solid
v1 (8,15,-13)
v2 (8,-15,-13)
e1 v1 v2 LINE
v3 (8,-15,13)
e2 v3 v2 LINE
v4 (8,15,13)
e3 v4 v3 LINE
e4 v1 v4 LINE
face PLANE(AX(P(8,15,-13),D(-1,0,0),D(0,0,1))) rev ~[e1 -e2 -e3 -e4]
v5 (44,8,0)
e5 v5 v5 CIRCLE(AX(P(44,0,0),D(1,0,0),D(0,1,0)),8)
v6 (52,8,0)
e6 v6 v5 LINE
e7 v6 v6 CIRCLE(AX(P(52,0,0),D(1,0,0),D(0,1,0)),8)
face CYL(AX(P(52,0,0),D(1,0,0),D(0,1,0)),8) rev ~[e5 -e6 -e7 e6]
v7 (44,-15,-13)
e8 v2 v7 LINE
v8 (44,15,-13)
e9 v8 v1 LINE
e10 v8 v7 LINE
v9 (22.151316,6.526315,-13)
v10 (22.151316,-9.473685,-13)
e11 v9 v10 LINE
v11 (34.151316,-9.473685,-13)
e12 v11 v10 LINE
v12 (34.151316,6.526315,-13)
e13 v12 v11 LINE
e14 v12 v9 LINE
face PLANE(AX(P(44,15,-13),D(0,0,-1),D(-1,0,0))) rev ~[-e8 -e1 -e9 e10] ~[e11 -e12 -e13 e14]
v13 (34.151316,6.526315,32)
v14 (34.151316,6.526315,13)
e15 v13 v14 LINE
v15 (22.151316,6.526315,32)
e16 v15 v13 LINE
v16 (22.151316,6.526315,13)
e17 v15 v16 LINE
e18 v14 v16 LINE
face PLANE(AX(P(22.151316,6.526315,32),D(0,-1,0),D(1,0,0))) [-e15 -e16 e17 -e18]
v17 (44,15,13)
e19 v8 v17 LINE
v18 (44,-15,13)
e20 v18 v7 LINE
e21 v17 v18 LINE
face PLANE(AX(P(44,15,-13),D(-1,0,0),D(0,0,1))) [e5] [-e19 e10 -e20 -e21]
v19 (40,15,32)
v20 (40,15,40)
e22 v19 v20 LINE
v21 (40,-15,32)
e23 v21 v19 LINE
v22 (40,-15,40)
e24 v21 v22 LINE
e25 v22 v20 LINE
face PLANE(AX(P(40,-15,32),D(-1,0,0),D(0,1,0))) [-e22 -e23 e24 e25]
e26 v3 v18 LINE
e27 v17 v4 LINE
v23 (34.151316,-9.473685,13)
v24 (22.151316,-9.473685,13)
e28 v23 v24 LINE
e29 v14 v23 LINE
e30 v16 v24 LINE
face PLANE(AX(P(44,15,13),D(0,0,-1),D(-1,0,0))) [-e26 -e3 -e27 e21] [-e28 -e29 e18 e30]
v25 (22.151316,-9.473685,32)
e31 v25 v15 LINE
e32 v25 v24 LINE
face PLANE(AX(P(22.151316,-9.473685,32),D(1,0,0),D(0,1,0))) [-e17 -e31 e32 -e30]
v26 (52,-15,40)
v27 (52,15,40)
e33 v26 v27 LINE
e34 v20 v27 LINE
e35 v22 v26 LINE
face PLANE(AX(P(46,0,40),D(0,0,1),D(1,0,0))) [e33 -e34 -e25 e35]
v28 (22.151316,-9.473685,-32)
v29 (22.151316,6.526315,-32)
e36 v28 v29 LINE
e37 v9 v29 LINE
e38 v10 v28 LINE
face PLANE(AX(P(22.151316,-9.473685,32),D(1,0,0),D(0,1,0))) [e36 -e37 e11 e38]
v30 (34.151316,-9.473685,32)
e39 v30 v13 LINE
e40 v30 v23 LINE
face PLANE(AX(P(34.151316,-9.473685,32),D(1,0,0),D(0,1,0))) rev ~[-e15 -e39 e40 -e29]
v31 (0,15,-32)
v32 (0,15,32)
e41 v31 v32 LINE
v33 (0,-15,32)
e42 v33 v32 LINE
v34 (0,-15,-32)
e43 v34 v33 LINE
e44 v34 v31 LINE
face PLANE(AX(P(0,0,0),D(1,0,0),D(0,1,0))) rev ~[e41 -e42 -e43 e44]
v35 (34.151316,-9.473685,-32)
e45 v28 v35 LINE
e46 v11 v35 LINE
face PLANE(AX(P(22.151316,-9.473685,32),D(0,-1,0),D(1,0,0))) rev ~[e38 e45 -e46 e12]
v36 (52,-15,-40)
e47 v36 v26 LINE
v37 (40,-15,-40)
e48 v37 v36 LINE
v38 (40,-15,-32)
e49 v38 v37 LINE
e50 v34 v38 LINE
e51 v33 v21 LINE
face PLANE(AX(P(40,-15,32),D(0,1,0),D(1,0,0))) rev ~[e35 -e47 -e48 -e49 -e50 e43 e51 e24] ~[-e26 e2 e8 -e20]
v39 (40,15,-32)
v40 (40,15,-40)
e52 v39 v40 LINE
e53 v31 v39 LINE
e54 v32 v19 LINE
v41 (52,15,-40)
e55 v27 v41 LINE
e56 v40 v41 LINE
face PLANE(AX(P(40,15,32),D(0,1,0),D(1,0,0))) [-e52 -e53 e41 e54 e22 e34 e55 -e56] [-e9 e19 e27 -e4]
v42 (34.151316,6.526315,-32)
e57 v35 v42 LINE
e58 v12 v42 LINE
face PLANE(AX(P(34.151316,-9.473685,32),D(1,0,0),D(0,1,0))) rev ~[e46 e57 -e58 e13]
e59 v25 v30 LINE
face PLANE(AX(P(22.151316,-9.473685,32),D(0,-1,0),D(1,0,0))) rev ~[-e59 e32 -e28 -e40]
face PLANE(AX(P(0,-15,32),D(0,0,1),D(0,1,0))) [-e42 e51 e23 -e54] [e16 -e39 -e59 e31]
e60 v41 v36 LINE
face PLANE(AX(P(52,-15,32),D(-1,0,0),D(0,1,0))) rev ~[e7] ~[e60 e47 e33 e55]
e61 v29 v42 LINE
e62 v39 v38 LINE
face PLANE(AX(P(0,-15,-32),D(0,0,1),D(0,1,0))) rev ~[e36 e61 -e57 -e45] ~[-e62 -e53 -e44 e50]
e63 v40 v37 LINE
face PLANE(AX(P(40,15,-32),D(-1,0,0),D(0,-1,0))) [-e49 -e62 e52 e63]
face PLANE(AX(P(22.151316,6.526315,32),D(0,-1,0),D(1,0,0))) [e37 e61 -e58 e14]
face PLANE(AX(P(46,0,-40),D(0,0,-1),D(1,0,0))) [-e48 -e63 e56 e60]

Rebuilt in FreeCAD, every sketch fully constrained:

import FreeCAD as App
import Part
import Sketcher
from FreeCAD import Vector


def add_polygon(sketch, points):
    """Adds a closed chain of lines whose ends are joined by coincident constraints."""
    first, n = sketch.GeometryCount, len(points)
    for a, b in zip(points, points[1:] + points[:1]):
        sketch.addGeometry(Part.LineSegment(App.Vector(*a, 0), App.Vector(*b, 0)), False)
    for i in range(n):
        sketch.addConstraint(Sketcher.Constraint("Coincident", first + i, 2, first + (i + 1) % n, 1))

doc = App.newDocument("Part")
body = doc.addObject("PartDesign::Body", "Body")

# Sketch on YZ plane
sketch1 = doc.addObject("Sketcher::SketchObject", "Sketch")
body.addObject(sketch1)
sketch1.AttachmentSupport = (doc.YZ_Plane, [""])
sketch1.MapMode = "FlatFace"
add_polygon(sketch1, [(-15, 32), (-15, -32), (15, -32), (15, 32)])  # lines 0-3
sketch1.addConstraint(Sketcher.Constraint("Vertical", 0))
sketch1.addConstraint(Sketcher.Constraint("Horizontal", 1))
sketch1.addConstraint(Sketcher.Constraint("Vertical", 2))
sketch1.addConstraint(Sketcher.Constraint("Horizontal", 3))
sketch1.addConstraint(Sketcher.Constraint("Symmetric", 0, 2, 2, 2, -1, 1))
sketch1.addConstraint(Sketcher.Constraint("DistanceX", 1, 1, 1, 2, 30.0))
sketch1.addConstraint(Sketcher.Constraint("DistanceY", 0, 2, 0, 1, 64.0))
pad1 = doc.addObject("PartDesign::Pad", "Pad")
body.addObject(pad1)
pad1.Profile = sketch1
pad1.Length = 52

# Sketch on XZ plane
sketch2 = doc.addObject("Sketcher::SketchObject", "Sketch001")
body.addObject(sketch2)
sketch2.AttachmentSupport = (doc.XZ_Plane, [""])
sketch2.MapMode = "FlatFace"
sketch2.AttachmentOffset = App.Placement(Vector(0, 0, -15), App.Rotation())
add_polygon(sketch2, [(44, 13), (44, -13), (8, -13), (8, 13)])  # lines 0-3
sketch2.addConstraint(Sketcher.Constraint("Vertical", 0))
sketch2.addConstraint(Sketcher.Constraint("Horizontal", 1))
sketch2.addConstraint(Sketcher.Constraint("Vertical", 2))
sketch2.addConstraint(Sketcher.Constraint("Horizontal", 3))
sketch2.addConstraint(Sketcher.Constraint("DistanceX", 1, 2, 1, 1, 36.0))
sketch2.addConstraint(Sketcher.Constraint("DistanceY", 0, 2, 0, 1, 26.0))
sketch2.addConstraint(Sketcher.Constraint("DistanceX", -1, 1, 0, 2, 44.0))
sketch2.addConstraint(Sketcher.Constraint("DistanceY", 0, 2, -1, 1, 13.0))
pocket1 = doc.addObject("PartDesign::Pocket", "Pocket")
body.addObject(pocket1)
pocket1.Profile = sketch2
pocket1.Length = 100
pocket1.Reversed = True

# Sketch on XY plane
sketch3 = doc.addObject("Sketcher::SketchObject", "Sketch002")
body.addObject(sketch3)
sketch3.AttachmentSupport = (doc.XY_Plane, [""])
sketch3.MapMode = "FlatFace"
sketch3.AttachmentOffset = App.Placement(Vector(0, 0, -32), App.Rotation())
add_polygon(sketch3, [(40, -15), (40, 15), (52, 15), (52, -15)])  # lines 0-3
sketch3.addConstraint(Sketcher.Constraint("Vertical", 0))
sketch3.addConstraint(Sketcher.Constraint("Horizontal", 1))
sketch3.addConstraint(Sketcher.Constraint("Vertical", 2))
sketch3.addConstraint(Sketcher.Constraint("Horizontal", 3))
sketch3.addConstraint(Sketcher.Constraint("DistanceX", 1, 1, 1, 2, 12.0))
sketch3.addConstraint(Sketcher.Constraint("DistanceY", 0, 1, 0, 2, 30.0))
sketch3.addConstraint(Sketcher.Constraint("DistanceX", -1, 1, 0, 2, 40.0))
sketch3.addConstraint(Sketcher.Constraint("DistanceY", -1, 1, 0, 2, 15.0))
pad2 = doc.addObject("PartDesign::Pad", "Pad001")
body.addObject(pad2)
pad2.Profile = sketch3
pad2.Length = 8
pad2.Reversed = True

# Sketch on XY plane
sketch4 = doc.addObject("Sketcher::SketchObject", "Sketch003")
body.addObject(sketch4)
sketch4.AttachmentSupport = (doc.XY_Plane, [""])
sketch4.MapMode = "FlatFace"
sketch4.AttachmentOffset = App.Placement(Vector(0, 0, 32), App.Rotation())
add_polygon(sketch4, [(40, 15), (40, -15), (52, -15), (52, 15)])  # lines 0-3
sketch4.addConstraint(Sketcher.Constraint("Vertical", 0))
sketch4.addConstraint(Sketcher.Constraint("Horizontal", 1))
sketch4.addConstraint(Sketcher.Constraint("Vertical", 2))
sketch4.addConstraint(Sketcher.Constraint("Horizontal", 3))
sketch4.addConstraint(Sketcher.Constraint("DistanceX", 1, 1, 1, 2, 12.0))
sketch4.addConstraint(Sketcher.Constraint("DistanceY", 0, 2, 0, 1, 30.0))
sketch4.addConstraint(Sketcher.Constraint("DistanceX", -1, 1, 0, 2, 40.0))
sketch4.addConstraint(Sketcher.Constraint("DistanceY", 0, 2, -1, 1, 15.0))
pad3 = doc.addObject("PartDesign::Pad", "Pad002")
body.addObject(pad3)
pad3.Profile = sketch4
pad3.Length = 8

# Sketch on YZ plane
sketch5 = doc.addObject("Sketcher::SketchObject", "Sketch004")
body.addObject(sketch5)
sketch5.AttachmentSupport = (doc.YZ_Plane, [""])
sketch5.MapMode = "FlatFace"
sketch5.AttachmentOffset = App.Placement(Vector(0, 0, 52), App.Rotation())
sketch5.addGeometry(Part.Circle(Vector(0, 0, 0), Vector(0, 0, 1), 8), False)
sketch5.addConstraint(Sketcher.Constraint("Coincident", 0, 3, -1, 1))
sketch5.addConstraint(Sketcher.Constraint("Diameter", 0, 16.0))
pocket2 = doc.addObject("PartDesign::Pocket", "Pocket001")
body.addObject(pocket2)
pocket2.Profile = sketch5
pocket2.Length = 10

# Sketch on XY plane
sketch6 = doc.addObject("Sketcher::SketchObject", "Sketch005")
body.addObject(sketch6)
sketch6.AttachmentSupport = (doc.XY_Plane, [""])
sketch6.MapMode = "FlatFace"
sketch6.AttachmentOffset = App.Placement(Vector(0, 0, 32), App.Rotation())
add_polygon(sketch6, [(22.151316, 6.526315), (22.151316, -9.473685), (34.151316, -9.473685), (34.151316, 6.526315)])  # lines 0-3
sketch6.addConstraint(Sketcher.Constraint("Vertical", 0))
sketch6.addConstraint(Sketcher.Constraint("Horizontal", 1))
sketch6.addConstraint(Sketcher.Constraint("Vertical", 2))
sketch6.addConstraint(Sketcher.Constraint("Horizontal", 3))
sketch6.addConstraint(Sketcher.Constraint("DistanceX", 1, 1, 1, 2, 12.0))
sketch6.addConstraint(Sketcher.Constraint("DistanceY", 0, 2, 0, 1, 16.0))
sketch6.addConstraint(Sketcher.Constraint("DistanceX", -1, 1, 0, 2, 22.151316))
sketch6.addConstraint(Sketcher.Constraint("DistanceY", 0, 2, -1, 1, 9.473685))
pocket3 = doc.addObject("PartDesign::Pocket", "Pocket002")
body.addObject(pocket3)
pocket3.Profile = sketch6
pocket3.Length = 100

doc.recompute()
